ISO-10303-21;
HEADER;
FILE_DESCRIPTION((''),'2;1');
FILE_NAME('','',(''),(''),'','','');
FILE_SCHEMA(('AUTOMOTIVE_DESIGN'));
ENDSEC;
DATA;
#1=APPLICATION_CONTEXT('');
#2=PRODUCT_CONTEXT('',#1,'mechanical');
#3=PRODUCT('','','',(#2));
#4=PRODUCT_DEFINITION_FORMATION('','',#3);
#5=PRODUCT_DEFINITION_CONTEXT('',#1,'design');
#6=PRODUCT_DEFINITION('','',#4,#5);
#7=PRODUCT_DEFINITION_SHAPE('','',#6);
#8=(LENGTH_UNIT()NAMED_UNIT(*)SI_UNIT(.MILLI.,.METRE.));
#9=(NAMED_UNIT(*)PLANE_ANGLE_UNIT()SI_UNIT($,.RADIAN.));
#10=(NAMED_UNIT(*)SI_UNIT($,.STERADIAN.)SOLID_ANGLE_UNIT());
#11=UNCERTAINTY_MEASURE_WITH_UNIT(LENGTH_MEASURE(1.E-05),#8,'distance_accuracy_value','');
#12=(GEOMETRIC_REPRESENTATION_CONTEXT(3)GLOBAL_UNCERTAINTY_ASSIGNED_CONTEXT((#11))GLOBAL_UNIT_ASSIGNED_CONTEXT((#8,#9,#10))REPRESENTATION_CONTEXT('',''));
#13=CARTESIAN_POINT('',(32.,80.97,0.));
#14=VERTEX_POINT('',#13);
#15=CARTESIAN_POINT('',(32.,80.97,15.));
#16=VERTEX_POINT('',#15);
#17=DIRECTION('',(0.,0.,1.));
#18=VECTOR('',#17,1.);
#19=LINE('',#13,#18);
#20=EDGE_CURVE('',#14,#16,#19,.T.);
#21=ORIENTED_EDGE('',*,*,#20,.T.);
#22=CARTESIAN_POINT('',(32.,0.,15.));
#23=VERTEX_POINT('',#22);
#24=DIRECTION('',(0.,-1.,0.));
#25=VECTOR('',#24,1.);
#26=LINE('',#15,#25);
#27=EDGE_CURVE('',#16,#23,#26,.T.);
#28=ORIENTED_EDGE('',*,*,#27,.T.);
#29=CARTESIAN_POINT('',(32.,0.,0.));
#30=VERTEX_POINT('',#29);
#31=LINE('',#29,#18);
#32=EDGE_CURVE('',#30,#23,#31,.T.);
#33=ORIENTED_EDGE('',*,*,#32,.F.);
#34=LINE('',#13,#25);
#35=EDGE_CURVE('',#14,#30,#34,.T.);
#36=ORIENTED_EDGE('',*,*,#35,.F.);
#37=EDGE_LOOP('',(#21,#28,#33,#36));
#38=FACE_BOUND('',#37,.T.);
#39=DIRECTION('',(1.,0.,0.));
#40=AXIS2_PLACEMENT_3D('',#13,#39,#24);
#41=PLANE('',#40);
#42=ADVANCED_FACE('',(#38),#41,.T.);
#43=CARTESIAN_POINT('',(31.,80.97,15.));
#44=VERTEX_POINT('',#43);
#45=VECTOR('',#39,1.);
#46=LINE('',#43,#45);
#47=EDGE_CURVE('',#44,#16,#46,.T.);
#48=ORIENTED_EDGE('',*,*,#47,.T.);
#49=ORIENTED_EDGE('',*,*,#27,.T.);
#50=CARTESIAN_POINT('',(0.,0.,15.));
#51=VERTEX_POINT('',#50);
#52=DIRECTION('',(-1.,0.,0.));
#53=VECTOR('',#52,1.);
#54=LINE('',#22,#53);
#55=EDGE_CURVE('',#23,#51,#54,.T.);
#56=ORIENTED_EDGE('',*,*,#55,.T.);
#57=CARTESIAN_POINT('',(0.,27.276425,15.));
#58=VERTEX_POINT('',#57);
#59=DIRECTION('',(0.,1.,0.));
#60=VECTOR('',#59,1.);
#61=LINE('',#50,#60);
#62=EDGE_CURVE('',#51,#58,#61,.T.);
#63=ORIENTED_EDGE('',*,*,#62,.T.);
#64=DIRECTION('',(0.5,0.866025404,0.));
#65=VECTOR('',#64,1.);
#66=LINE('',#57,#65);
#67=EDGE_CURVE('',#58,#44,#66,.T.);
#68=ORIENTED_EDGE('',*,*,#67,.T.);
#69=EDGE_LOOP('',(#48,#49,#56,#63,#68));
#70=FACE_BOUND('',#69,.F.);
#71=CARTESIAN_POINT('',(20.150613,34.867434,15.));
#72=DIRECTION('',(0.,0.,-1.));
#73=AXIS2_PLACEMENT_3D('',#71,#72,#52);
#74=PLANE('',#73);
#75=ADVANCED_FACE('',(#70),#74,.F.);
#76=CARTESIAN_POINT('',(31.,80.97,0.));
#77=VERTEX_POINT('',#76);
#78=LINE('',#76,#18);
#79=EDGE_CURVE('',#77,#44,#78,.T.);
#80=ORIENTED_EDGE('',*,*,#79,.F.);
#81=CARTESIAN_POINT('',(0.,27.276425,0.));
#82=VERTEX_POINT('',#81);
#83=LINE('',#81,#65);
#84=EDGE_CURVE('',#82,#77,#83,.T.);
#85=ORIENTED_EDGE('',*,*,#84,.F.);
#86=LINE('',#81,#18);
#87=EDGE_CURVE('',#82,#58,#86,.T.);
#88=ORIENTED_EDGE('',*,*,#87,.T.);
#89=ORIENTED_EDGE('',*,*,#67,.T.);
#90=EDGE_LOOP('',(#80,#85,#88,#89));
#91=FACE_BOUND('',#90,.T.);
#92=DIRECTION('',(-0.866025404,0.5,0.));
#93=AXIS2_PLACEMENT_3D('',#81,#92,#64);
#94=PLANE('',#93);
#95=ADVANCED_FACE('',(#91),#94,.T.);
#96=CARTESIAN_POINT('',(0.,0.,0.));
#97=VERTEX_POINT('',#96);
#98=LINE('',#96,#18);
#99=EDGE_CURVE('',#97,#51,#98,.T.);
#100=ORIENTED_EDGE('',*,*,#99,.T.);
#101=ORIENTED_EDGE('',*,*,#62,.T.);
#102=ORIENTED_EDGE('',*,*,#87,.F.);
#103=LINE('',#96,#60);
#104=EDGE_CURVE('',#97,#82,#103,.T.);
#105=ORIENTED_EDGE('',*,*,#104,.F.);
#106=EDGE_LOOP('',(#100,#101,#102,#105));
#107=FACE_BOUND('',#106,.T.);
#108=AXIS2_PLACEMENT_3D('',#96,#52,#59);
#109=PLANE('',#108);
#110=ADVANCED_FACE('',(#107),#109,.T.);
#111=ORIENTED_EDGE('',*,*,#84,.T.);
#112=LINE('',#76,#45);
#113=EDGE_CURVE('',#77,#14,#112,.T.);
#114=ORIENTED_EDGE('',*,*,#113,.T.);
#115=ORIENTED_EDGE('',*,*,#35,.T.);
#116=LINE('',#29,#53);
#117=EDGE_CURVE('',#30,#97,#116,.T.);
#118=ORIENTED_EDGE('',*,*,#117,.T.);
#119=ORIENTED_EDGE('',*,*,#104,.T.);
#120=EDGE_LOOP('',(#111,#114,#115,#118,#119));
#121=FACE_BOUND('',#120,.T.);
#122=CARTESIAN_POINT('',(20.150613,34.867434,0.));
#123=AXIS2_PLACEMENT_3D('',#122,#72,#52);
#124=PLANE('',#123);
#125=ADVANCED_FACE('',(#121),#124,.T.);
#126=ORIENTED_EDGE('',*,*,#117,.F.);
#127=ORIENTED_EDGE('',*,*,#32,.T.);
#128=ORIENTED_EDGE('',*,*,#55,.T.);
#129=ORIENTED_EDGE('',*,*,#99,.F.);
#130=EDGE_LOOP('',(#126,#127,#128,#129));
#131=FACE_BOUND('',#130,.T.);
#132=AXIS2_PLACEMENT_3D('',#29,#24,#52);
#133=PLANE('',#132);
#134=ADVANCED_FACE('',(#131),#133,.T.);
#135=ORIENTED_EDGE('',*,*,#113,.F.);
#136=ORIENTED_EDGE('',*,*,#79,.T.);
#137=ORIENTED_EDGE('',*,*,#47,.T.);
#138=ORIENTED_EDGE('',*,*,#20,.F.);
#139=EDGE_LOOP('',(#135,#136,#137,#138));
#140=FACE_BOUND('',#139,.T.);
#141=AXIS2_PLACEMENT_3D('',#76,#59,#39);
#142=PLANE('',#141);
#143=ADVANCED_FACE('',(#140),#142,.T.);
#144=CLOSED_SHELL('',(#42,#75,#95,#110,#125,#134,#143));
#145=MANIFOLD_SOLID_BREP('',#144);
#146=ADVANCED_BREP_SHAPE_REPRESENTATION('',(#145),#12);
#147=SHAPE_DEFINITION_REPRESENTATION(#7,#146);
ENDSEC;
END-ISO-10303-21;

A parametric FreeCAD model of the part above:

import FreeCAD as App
import Part
import Sketcher

V = App.Vector
Q = App.Units.Quantity


def add_polygon(sketch, points):
    """Adds a closed chain of lines whose ends are joined by coincident constraints."""
    first, n = sketch.GeometryCount, len(points)
    for a, b in zip(points, points[1:] + points[:1]):
        sketch.addGeometry(Part.LineSegment(App.Vector(*a, 0), App.Vector(*b, 0)), False)
    for i in range(n):
        sketch.addConstraint(Sketcher.Constraint("Coincident", first + i, 2, first + (i + 1) % n, 1))

doc = App.newDocument("Part")
body = doc.addObject("PartDesign::Body", "Body")

# Sketch on XY plane
sketch1 = body.newObject("Sketcher::SketchObject", "Sketch")
sketch1.AttachmentSupport = (doc.getObject("XY_Plane"), [""])
sketch1.MapMode = "FlatFace"
add_polygon(sketch1, [(31, 80.97), (0, 27.276425), (0, 0), (32, 0), (32, 80.97)])  # lines 0-4
sketch1.addConstraint([
    Sketcher.Constraint("Vertical", 1),
    Sketcher.Constraint("Horizontal", 2),
    Sketcher.Constraint("Vertical", 3),
    Sketcher.Constraint("Horizontal", 4),
    Sketcher.Constraint("Coincident", 1, 2, -1, 1),
    Sketcher.Constraint("DistanceX", 2, 1, 2, 2, 32.0),
    Sketcher.Constraint("DistanceX", 4, 2, 4, 1, 1.0),
    Sketcher.Constraint("Angle", 0, Q("-120 deg")),
    Sketcher.Constraint("DistanceY", 3, 1, 3, 2, 80.97),
])
pad1 = body.newObject("PartDesign::Pad", "Pad")
pad1.Profile = sketch1
pad1.Length = 15

doc.recompute()
